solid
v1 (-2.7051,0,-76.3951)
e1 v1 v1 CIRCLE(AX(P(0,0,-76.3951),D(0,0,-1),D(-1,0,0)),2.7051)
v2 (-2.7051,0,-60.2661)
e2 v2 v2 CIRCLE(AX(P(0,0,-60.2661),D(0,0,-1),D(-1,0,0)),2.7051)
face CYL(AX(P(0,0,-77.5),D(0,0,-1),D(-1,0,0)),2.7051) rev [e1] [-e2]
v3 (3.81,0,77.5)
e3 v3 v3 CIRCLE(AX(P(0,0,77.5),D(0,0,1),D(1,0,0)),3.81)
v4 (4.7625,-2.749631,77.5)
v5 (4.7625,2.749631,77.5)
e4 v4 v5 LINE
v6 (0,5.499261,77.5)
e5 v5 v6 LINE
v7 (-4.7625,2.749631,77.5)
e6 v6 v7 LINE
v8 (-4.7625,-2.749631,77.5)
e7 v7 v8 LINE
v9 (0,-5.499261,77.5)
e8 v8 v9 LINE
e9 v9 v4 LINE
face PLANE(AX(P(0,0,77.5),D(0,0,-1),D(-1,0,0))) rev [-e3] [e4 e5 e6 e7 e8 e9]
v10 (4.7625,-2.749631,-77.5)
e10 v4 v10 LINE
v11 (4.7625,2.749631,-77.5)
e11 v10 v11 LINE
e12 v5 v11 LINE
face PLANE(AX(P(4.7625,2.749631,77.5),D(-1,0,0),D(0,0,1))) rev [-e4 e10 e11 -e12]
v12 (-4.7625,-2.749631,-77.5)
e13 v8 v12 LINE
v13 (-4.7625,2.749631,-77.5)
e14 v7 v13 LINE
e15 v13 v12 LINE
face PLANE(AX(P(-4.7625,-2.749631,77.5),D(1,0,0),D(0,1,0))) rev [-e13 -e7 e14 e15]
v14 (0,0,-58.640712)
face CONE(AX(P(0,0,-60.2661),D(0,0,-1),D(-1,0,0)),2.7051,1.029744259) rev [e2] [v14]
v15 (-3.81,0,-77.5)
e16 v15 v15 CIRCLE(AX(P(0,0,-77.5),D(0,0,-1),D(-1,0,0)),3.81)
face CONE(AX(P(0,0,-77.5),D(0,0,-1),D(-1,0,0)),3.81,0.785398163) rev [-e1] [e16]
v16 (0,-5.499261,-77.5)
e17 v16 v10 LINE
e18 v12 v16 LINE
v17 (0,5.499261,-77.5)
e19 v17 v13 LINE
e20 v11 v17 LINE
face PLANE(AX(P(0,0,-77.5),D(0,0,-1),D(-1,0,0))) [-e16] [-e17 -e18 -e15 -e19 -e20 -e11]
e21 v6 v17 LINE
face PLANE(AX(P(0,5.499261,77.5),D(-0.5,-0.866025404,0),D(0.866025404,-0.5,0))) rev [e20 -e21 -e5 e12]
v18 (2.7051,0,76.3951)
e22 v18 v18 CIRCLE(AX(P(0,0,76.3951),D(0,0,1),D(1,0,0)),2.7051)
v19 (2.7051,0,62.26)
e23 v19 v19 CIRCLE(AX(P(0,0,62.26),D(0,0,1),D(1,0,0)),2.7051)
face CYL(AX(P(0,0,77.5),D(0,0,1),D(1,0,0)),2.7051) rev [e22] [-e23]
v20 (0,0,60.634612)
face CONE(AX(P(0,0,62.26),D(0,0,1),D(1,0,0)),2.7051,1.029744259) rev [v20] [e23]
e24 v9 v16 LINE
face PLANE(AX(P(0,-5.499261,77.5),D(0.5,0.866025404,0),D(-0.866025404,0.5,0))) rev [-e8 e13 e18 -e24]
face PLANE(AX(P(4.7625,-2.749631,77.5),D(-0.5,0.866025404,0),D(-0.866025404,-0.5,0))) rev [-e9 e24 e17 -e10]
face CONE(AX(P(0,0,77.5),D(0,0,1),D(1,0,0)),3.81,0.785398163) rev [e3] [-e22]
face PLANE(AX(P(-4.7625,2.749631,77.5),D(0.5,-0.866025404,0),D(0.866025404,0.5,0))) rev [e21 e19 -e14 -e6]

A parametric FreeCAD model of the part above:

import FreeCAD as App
import Part
import Sketcher
Q = App.Units.Quantity


def add_polygon(sketch, points):
    """Adds a closed chain of lines whose ends are joined by coincident constraints."""
    first, n = sketch.GeometryCount, len(points)
    for a, b in zip(points, points[1:] + points[:1]):
        sketch.addGeometry(Part.LineSegment(App.Vector(*a, 0), App.Vector(*b, 0)), False)
    for i in range(n):
        sketch.addConstraint(Sketcher.Constraint("Coincident", first + i, 2, first + (i + 1) % n, 1))

doc = App.newDocument("Part")
body = doc.addObject("PartDesign::Body", "Body")

# Sketch on XY plane
sketch1 = doc.addObject("Sketcher::SketchObject", "Sketch")
body.addObject(sketch1)
sketch1.AttachmentSupport = (doc.XY_Plane, [""])
sketch1.MapMode = "FlatFace"
add_polygon(sketch1, [(5, 3), (0, 5), (-5, 3), (-5, -3), (0, -5), (5, -3)])  # lines 0-5
sketch1.addConstraint(Sketcher.Constraint("Vertical", 2))
sketch1.addConstraint(Sketcher.Constraint("Vertical", 5))
sketch1.addConstraint(Sketcher.Constraint("Symmetric", 0, 2, 3, 2, -1, 1))
sketch1.addConstraint(Sketcher.Constraint("Symmetric", 1, 2, 4, 2, -1, 1))
sketch1.addConstraint(Sketcher.Constraint("PointOnObject", 0, 2, -2))
sketch1.addConstraint(Sketcher.Constraint("Parallel", 0, 3))
sketch1.addConstraint(Sketcher.Constraint("Horizontal", 2, 2, 4, 2))
sketch1.addConstraint(Sketcher.Constraint("Angle", 0, Q("150 deg")))
sketch1.addConstraint(Sketcher.Constraint("DistanceX", 1, 2, -1, 1, Q("0.1875 in")))
sketch1.addConstraint(Sketcher.Constraint("DistanceY", 2, 2, 2, 1, Q("5.499261 mm")))
pad1 = doc.addObject("PartDesign::Pad", "Pad")
body.addObject(pad1)
pad1.Profile = sketch1
pad1.Length = 155
pad1.Midplane = True

# Sketch on XY plane
sketch2 = doc.addObject("Sketcher::SketchObject", "Sketch001")
body.addObject(sketch2)
sketch2.AttachmentSupport = (doc.XY_Plane, [""])
sketch2.MapMode = "FlatFace"
sketch2.AttachmentOffset = App.Placement(App.Vector(0, 0, 77.5), App.Rotation())
sketch2.addGeometry(Part.Circle(App.Vector(0, 0, 0), App.Vector(0, 0, 1), 2.7), False)
sketch2.addConstraint(Sketcher.Constraint("Coincident", 0, 3, -1, 1))
sketch2.addConstraint(Sketcher.Constraint("Diameter", 0, Q("0.213 in")))
doc.recompute()
hole = doc.addObject("PartDesign::Hole", "Hole")
body.addObject(hole)
hole.Profile = sketch2
hole.ThreadType = "None"
hole.Diameter = Q("0.213 in")
hole.DepthType = "Dimension"
hole.Depth = Q("0.6 in")
hole.DrillPoint = "Angled"
hole.DrillPointAngle = 118
hole.HoleCutType = "Countersink"
hole.HoleCutDiameter = Q("0.3 in")
hole.HoleCutCountersinkAngle = 90

# Sketch on XY plane
sketch3 = doc.addObject("Sketcher::SketchObject", "Sketch002")
body.addObject(sketch3)
sketch3.AttachmentSupport = (doc.XY_Plane, [""])
sketch3.MapMode = "FlatFace"
sketch3.AttachmentOffset = App.Placement(App.Vector(0, 0, -77.5), App.Rotation())
sketch3.addGeometry(Part.Circle(App.Vector(0, 0, 0), App.Vector(0, 0, 1), 2.7), False)
sketch3.addConstraint(Sketcher.Constraint("Coincident", 0, 3, -1, 1))
sketch3.addConstraint(Sketcher.Constraint("Diameter", 0, Q("0.213 in")))
doc.recompute()
hole2 = doc.addObject("PartDesign::Hole", "Hole001")
body.addObject(hole2)
hole2.Profile = sketch3
hole2.ThreadType = "None"
hole2.Diameter = Q("0.213 in")
hole2.DepthType = "Dimension"
hole2.Depth = Q("0.6785 in")
hole2.DrillPoint = "Angled"
hole2.DrillPointAngle = 118
hole2.HoleCutType = "Countersink"
hole2.HoleCutDiameter = Q("0.3 in")
hole2.HoleCutCountersinkAngle = 90
hole2.Reversed = True

doc.recompute()
